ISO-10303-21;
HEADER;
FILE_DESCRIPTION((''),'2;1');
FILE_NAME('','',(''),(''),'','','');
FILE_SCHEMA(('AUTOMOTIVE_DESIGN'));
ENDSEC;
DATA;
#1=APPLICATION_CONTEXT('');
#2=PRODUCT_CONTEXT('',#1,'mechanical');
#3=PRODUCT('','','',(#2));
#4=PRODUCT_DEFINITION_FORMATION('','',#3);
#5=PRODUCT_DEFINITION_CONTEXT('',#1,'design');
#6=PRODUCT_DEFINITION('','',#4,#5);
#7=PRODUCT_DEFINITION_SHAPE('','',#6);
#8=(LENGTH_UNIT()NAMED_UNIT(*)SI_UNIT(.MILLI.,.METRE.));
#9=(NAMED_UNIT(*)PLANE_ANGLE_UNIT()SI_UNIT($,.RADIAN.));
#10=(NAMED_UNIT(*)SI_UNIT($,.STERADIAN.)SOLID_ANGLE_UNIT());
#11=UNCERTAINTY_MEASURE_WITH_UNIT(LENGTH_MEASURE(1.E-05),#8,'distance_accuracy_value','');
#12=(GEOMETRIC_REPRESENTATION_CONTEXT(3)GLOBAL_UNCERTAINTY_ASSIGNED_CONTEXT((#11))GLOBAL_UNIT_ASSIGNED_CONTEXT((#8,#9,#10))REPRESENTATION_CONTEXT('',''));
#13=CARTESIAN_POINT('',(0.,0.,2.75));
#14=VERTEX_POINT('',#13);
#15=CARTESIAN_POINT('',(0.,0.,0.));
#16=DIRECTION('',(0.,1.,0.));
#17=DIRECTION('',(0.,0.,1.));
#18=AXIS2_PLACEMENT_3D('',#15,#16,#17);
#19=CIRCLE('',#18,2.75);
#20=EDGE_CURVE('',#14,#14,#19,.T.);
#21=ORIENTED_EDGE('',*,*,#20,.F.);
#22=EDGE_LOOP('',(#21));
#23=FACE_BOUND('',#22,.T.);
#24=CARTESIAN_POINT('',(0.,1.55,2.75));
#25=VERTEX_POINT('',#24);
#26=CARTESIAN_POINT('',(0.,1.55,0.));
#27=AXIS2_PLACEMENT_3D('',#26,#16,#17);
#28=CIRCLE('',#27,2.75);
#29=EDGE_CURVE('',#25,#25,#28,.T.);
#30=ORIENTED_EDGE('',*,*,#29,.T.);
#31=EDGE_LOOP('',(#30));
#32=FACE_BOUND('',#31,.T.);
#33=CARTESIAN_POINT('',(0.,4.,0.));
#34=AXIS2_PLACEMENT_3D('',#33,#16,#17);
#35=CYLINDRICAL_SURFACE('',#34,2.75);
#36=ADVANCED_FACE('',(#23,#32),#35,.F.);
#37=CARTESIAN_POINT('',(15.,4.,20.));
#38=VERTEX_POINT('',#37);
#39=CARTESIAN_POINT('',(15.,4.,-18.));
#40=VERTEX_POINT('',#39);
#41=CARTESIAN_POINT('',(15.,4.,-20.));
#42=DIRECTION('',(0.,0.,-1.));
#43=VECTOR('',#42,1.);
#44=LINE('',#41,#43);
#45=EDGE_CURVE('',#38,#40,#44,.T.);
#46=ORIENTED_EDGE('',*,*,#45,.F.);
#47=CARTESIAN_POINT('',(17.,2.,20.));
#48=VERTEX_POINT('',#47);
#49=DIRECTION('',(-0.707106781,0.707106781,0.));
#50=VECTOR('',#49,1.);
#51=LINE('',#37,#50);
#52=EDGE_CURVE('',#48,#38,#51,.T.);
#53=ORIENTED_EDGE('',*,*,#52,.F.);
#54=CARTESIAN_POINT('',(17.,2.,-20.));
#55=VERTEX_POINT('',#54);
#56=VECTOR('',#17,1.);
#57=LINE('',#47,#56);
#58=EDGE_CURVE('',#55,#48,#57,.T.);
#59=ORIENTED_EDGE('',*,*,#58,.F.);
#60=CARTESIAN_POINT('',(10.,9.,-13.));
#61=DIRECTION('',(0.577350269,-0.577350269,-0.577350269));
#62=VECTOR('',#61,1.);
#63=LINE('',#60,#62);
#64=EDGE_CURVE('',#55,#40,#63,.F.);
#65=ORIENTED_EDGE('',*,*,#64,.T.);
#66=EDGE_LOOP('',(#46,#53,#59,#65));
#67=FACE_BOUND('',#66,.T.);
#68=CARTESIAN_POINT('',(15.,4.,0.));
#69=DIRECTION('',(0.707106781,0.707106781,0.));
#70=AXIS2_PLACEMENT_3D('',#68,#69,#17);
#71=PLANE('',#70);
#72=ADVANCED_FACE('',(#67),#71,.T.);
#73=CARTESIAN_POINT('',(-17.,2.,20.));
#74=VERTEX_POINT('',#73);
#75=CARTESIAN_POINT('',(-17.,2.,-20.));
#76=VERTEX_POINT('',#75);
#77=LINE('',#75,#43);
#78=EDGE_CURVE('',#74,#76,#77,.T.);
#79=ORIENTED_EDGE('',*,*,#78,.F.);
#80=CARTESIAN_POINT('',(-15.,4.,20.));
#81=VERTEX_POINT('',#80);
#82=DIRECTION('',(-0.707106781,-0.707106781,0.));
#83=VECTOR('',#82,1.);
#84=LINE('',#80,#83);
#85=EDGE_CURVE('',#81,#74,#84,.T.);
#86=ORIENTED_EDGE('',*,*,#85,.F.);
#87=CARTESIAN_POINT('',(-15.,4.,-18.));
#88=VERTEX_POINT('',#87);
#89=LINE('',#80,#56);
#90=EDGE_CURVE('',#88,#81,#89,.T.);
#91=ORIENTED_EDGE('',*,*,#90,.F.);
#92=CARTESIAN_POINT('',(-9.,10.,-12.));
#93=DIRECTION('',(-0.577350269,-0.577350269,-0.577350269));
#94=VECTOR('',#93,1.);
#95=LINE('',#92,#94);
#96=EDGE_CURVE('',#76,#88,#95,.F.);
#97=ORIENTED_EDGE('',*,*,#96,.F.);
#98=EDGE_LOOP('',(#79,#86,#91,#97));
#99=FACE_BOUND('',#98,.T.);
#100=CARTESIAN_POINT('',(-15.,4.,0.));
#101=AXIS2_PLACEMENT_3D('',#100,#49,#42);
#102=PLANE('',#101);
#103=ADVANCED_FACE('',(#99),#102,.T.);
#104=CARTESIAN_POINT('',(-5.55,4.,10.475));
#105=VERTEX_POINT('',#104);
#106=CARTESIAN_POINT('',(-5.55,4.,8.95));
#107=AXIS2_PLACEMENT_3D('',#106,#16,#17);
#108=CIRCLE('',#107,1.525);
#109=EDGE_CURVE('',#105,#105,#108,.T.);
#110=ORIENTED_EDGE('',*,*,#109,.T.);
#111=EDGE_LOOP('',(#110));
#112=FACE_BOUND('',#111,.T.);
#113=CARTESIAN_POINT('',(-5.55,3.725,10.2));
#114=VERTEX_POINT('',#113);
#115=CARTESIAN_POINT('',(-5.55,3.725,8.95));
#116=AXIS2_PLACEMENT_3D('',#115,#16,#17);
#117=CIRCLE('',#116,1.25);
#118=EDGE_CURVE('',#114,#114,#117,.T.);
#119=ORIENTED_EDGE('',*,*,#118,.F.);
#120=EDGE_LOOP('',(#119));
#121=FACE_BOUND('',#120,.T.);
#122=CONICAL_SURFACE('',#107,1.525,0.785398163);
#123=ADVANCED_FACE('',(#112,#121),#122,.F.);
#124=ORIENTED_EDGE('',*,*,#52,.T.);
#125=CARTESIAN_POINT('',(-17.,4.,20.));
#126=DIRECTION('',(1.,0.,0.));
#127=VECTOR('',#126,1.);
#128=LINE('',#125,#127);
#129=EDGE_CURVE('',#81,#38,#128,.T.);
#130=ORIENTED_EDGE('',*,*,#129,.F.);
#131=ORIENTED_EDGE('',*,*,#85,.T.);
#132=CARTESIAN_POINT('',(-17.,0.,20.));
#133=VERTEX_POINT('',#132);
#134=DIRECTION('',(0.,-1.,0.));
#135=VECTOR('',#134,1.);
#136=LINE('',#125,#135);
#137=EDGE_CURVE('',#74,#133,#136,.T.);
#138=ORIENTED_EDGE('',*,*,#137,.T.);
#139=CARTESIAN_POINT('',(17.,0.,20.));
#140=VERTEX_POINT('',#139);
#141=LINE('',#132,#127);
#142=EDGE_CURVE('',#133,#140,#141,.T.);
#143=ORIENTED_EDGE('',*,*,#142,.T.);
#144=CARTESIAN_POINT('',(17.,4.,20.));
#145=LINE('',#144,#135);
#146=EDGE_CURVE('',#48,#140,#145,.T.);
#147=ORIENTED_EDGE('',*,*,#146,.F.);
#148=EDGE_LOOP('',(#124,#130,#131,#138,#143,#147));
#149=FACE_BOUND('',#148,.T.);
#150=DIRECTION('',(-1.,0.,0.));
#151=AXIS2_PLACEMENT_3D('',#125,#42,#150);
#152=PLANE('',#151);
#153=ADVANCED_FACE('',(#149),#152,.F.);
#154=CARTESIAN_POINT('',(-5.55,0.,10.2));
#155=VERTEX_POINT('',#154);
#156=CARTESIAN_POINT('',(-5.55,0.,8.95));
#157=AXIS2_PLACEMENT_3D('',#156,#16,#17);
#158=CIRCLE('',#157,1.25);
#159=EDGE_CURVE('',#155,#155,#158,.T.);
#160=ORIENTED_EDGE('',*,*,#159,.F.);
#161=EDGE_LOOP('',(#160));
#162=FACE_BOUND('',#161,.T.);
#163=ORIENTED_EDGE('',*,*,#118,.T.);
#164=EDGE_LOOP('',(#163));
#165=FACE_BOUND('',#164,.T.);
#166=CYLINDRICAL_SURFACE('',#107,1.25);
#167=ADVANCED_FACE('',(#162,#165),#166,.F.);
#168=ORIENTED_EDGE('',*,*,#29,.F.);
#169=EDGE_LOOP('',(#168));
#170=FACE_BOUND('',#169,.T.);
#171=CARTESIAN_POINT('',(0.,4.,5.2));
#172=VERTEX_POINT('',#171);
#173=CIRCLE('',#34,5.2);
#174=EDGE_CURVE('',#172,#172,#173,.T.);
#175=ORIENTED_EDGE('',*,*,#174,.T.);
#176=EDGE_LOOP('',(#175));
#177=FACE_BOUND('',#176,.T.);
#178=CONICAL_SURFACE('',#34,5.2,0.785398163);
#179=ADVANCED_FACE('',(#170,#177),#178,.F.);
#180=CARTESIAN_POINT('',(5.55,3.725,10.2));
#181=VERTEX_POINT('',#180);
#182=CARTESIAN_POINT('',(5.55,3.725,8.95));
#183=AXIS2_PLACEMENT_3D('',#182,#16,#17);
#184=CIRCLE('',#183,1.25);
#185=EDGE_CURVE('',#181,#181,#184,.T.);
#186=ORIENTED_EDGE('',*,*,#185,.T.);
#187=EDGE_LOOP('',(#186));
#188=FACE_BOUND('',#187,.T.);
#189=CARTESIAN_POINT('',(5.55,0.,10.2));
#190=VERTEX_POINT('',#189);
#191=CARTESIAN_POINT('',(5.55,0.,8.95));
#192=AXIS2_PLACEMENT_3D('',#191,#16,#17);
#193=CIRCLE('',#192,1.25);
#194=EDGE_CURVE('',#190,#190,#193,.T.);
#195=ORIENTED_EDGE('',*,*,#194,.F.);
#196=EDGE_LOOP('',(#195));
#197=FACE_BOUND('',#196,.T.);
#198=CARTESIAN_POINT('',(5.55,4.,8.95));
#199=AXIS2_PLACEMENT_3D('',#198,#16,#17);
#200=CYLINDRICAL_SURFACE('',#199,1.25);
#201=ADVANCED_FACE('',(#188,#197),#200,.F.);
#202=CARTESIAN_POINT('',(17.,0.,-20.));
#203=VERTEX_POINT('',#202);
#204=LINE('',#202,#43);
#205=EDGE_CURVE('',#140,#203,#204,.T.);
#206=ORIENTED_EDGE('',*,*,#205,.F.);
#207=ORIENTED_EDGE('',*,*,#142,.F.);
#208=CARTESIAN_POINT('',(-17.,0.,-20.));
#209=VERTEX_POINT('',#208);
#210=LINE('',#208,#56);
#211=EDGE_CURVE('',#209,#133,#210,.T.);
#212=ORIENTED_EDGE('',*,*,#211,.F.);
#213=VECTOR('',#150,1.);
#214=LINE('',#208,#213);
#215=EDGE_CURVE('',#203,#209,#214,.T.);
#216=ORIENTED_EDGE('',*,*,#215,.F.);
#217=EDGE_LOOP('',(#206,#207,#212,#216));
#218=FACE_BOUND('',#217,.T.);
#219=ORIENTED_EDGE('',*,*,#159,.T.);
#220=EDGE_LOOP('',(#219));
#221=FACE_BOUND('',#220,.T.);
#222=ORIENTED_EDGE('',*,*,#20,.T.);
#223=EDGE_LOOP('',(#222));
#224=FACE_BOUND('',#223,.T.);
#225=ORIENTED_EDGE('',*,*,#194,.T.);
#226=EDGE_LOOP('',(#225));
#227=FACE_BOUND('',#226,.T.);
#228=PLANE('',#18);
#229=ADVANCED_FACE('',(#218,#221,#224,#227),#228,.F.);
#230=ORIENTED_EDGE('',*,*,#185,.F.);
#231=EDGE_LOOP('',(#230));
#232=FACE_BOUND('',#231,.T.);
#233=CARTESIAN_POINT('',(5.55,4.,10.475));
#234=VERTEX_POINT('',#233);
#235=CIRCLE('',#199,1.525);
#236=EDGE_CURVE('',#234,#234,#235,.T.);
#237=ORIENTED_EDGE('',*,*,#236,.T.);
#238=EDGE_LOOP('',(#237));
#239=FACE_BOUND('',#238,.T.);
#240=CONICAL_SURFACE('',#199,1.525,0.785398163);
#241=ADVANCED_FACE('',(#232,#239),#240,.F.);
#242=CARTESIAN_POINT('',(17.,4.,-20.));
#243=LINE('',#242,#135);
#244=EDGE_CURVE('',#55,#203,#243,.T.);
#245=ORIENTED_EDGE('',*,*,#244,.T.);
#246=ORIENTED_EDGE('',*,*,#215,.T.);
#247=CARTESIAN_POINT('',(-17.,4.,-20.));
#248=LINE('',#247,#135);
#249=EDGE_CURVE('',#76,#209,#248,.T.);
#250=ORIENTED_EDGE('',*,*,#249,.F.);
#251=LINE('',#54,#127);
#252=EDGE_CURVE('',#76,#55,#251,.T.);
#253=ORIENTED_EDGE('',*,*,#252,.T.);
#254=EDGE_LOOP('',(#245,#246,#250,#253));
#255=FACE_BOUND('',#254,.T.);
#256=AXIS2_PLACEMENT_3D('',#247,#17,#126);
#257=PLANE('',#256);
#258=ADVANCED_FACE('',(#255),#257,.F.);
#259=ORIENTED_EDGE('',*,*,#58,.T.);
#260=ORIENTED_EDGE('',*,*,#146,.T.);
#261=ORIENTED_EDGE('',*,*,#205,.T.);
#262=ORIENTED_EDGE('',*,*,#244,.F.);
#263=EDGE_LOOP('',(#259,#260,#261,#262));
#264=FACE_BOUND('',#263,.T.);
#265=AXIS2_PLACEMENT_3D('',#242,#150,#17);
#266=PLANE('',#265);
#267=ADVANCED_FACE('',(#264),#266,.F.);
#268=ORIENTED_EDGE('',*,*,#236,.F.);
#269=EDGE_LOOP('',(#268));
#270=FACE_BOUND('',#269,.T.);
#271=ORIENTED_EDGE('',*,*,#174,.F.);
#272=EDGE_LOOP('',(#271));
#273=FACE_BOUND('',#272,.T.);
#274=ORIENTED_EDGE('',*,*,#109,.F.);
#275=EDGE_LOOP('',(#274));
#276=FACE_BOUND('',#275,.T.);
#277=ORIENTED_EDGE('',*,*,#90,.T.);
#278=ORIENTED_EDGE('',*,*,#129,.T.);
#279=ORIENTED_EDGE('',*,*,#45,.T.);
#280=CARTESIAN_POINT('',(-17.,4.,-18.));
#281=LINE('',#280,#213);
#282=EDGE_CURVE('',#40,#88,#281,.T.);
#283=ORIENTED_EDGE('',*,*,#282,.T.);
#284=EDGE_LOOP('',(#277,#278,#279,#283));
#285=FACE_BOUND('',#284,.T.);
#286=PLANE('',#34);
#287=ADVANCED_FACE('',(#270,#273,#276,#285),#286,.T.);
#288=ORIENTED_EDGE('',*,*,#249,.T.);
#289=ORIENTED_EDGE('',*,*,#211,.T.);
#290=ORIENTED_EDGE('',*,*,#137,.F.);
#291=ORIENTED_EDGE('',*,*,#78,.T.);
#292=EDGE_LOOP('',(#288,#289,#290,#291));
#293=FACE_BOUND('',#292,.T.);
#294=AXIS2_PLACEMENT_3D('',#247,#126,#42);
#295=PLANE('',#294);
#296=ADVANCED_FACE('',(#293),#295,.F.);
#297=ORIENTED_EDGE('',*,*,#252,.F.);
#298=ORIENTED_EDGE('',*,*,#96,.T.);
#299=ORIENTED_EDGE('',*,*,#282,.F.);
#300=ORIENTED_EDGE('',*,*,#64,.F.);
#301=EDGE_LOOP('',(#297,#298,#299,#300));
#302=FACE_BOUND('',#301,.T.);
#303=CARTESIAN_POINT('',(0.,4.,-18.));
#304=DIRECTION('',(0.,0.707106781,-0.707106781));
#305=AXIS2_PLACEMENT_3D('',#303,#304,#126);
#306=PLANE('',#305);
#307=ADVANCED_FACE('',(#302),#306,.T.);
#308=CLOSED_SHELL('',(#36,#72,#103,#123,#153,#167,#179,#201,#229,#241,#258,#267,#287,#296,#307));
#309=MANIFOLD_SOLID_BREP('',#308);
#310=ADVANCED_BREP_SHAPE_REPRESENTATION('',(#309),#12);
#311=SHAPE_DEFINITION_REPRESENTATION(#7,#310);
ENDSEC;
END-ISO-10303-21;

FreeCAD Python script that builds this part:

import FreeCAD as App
import Part
import Sketcher
from FreeCAD import Vector
Q = App.Units.Quantity


def edges_at(feature, points):
    """Names of the edges that pass closest to the given points."""
    edges = feature.Shape.Edges
    near = lambda p: min(range(len(edges)), key=lambda i: edges[i].distToShape(Part.Vertex(*p))[0])
    return sorted({f"Edge{near(p) + 1}" for p in points})


def add_polygon(sketch, points):
    """Adds a closed chain of lines whose ends are joined by coincident constraints."""
    first, n = sketch.GeometryCount, len(points)
    for a, b in zip(points, points[1:] + points[:1]):
        sketch.addGeometry(Part.LineSegment(App.Vector(*a, 0), App.Vector(*b, 0)), False)
    for i in range(n):
        sketch.addConstraint(Sketcher.Constraint("Coincident", first + i, 2, first + (i + 1) % n, 1))

doc = App.newDocument("Part")
body = doc.addObject("PartDesign::Body", "Body")

# Sketch on XZ plane
sketch1 = body.newObject("Sketcher::SketchObject", "Sketch")
sketch1.AttachmentSupport = (doc.getObject("XZ_Plane"), [""])
sketch1.MapMode = "FlatFace"
add_polygon(sketch1, [(-17, -20), (-17, 20), (17, 20), (17, -20)])  # lines 0-3
sketch1.addConstraint([
    Sketcher.Constraint("Vertical", 0),
    Sketcher.Constraint("Horizontal", 1),
    Sketcher.Constraint("Vertical", 2),
    Sketcher.Constraint("Horizontal", 3),
    Sketcher.Constraint("Symmetric", 0, 2, 2, 2, -1, 1),
    Sketcher.Constraint("DistanceX", 1, 1, 1, 2, Q("34 mm")),
    Sketcher.Constraint("DistanceY", 0, 1, 0, 2, Q("40 mm")),
])
pad1 = body.newObject("PartDesign::Pad", "Pad")
pad1.Profile = sketch1
pad1.Length = 4
pad1.Reversed = True

# Sketch on YZ plane
sketch2 = body.newObject("Sketcher::SketchObject", "Sketch001")
sketch2.AttachmentSupport = (doc.getObject("YZ_Plane"), [""])
sketch2.MapMode = "FlatFace"
add_polygon(sketch2, [(0, 0), (4, 0), (4, 5.2), (1.6, 2.8), (0, 2.8)])  # lines 0-4
sketch2.addConstraint([
    Sketcher.Constraint("Horizontal", 0),
    Sketcher.Constraint("Vertical", 1),
    Sketcher.Constraint("Horizontal", 3),
    Sketcher.Constraint("Vertical", 4),
    Sketcher.Constraint("Coincident", 4, 2, -1, 1),
    Sketcher.Constraint("DistanceX", 0, 1, 0, 2, Q("4 mm")),
    Sketcher.Constraint("Angle", 2, Q("-135 deg")),
    Sketcher.Constraint("DistanceY", 1, 1, 1, 2, Q("5.2 mm")),
    Sketcher.Constraint("DistanceX", 3, 2, 3, 1, Q("1.55 mm")),
])
groove = body.newObject("PartDesign::Groove", "Groove")
groove.Profile = sketch2
groove.ReferenceAxis = (sketch2, ["H_Axis"])
groove.Angle = 360

# Sketch on XZ plane
sketch3 = body.newObject("Sketcher::SketchObject", "Sketch002")
sketch3.AttachmentSupport = (doc.getObject("XZ_Plane"), [""])
sketch3.MapMode = "FlatFace"
sketch3.AttachmentOffset = App.Placement(Vector(0, 0, -4), App.Rotation())
sketch3.addGeometry([
    Part.Circle(Vector(-5.5, 8.9, 0), Vector(0, 0, 1), 1.2),
    Part.Circle(Vector(5.5, 8.9, 0), Vector(0, 0, 1), 1.2),
], False)
sketch3.addConstraint([
    Sketcher.Constraint("Equal", 0, 1),
    Sketcher.Constraint("Symmetric", 0, 3, 1, 3, -2),
    Sketcher.Constraint("Diameter", 0, Q("2.5 mm")),
    Sketcher.Constraint("DistanceX", 0, 3, 1, 3, Q("11.1 mm")),
    Sketcher.Constraint("DistanceY", -1, 1, 0, 3, Q("8.95 mm")),
])
doc.recompute()
hole = body.newObject("PartDesign::Hole", "Hole")
hole.Profile = sketch3
hole.ThreadType = "None"
hole.Diameter = 2.5
hole.DepthType = "ThroughAll"
hole.HoleCutType = "Countersink"
hole.HoleCutDiameter = 3.05
hole.HoleCutCountersinkAngle = 90
hole.Reversed = True
doc.recompute()

chamfer = body.newObject("PartDesign::Chamfer", "Chamfer")
chamfer.Base = (hole, edges_at(hole, [(-17, 4, 0), (17, 4, 0), (0, 4, -20)]))
chamfer.Size = 2

doc.recompute()
